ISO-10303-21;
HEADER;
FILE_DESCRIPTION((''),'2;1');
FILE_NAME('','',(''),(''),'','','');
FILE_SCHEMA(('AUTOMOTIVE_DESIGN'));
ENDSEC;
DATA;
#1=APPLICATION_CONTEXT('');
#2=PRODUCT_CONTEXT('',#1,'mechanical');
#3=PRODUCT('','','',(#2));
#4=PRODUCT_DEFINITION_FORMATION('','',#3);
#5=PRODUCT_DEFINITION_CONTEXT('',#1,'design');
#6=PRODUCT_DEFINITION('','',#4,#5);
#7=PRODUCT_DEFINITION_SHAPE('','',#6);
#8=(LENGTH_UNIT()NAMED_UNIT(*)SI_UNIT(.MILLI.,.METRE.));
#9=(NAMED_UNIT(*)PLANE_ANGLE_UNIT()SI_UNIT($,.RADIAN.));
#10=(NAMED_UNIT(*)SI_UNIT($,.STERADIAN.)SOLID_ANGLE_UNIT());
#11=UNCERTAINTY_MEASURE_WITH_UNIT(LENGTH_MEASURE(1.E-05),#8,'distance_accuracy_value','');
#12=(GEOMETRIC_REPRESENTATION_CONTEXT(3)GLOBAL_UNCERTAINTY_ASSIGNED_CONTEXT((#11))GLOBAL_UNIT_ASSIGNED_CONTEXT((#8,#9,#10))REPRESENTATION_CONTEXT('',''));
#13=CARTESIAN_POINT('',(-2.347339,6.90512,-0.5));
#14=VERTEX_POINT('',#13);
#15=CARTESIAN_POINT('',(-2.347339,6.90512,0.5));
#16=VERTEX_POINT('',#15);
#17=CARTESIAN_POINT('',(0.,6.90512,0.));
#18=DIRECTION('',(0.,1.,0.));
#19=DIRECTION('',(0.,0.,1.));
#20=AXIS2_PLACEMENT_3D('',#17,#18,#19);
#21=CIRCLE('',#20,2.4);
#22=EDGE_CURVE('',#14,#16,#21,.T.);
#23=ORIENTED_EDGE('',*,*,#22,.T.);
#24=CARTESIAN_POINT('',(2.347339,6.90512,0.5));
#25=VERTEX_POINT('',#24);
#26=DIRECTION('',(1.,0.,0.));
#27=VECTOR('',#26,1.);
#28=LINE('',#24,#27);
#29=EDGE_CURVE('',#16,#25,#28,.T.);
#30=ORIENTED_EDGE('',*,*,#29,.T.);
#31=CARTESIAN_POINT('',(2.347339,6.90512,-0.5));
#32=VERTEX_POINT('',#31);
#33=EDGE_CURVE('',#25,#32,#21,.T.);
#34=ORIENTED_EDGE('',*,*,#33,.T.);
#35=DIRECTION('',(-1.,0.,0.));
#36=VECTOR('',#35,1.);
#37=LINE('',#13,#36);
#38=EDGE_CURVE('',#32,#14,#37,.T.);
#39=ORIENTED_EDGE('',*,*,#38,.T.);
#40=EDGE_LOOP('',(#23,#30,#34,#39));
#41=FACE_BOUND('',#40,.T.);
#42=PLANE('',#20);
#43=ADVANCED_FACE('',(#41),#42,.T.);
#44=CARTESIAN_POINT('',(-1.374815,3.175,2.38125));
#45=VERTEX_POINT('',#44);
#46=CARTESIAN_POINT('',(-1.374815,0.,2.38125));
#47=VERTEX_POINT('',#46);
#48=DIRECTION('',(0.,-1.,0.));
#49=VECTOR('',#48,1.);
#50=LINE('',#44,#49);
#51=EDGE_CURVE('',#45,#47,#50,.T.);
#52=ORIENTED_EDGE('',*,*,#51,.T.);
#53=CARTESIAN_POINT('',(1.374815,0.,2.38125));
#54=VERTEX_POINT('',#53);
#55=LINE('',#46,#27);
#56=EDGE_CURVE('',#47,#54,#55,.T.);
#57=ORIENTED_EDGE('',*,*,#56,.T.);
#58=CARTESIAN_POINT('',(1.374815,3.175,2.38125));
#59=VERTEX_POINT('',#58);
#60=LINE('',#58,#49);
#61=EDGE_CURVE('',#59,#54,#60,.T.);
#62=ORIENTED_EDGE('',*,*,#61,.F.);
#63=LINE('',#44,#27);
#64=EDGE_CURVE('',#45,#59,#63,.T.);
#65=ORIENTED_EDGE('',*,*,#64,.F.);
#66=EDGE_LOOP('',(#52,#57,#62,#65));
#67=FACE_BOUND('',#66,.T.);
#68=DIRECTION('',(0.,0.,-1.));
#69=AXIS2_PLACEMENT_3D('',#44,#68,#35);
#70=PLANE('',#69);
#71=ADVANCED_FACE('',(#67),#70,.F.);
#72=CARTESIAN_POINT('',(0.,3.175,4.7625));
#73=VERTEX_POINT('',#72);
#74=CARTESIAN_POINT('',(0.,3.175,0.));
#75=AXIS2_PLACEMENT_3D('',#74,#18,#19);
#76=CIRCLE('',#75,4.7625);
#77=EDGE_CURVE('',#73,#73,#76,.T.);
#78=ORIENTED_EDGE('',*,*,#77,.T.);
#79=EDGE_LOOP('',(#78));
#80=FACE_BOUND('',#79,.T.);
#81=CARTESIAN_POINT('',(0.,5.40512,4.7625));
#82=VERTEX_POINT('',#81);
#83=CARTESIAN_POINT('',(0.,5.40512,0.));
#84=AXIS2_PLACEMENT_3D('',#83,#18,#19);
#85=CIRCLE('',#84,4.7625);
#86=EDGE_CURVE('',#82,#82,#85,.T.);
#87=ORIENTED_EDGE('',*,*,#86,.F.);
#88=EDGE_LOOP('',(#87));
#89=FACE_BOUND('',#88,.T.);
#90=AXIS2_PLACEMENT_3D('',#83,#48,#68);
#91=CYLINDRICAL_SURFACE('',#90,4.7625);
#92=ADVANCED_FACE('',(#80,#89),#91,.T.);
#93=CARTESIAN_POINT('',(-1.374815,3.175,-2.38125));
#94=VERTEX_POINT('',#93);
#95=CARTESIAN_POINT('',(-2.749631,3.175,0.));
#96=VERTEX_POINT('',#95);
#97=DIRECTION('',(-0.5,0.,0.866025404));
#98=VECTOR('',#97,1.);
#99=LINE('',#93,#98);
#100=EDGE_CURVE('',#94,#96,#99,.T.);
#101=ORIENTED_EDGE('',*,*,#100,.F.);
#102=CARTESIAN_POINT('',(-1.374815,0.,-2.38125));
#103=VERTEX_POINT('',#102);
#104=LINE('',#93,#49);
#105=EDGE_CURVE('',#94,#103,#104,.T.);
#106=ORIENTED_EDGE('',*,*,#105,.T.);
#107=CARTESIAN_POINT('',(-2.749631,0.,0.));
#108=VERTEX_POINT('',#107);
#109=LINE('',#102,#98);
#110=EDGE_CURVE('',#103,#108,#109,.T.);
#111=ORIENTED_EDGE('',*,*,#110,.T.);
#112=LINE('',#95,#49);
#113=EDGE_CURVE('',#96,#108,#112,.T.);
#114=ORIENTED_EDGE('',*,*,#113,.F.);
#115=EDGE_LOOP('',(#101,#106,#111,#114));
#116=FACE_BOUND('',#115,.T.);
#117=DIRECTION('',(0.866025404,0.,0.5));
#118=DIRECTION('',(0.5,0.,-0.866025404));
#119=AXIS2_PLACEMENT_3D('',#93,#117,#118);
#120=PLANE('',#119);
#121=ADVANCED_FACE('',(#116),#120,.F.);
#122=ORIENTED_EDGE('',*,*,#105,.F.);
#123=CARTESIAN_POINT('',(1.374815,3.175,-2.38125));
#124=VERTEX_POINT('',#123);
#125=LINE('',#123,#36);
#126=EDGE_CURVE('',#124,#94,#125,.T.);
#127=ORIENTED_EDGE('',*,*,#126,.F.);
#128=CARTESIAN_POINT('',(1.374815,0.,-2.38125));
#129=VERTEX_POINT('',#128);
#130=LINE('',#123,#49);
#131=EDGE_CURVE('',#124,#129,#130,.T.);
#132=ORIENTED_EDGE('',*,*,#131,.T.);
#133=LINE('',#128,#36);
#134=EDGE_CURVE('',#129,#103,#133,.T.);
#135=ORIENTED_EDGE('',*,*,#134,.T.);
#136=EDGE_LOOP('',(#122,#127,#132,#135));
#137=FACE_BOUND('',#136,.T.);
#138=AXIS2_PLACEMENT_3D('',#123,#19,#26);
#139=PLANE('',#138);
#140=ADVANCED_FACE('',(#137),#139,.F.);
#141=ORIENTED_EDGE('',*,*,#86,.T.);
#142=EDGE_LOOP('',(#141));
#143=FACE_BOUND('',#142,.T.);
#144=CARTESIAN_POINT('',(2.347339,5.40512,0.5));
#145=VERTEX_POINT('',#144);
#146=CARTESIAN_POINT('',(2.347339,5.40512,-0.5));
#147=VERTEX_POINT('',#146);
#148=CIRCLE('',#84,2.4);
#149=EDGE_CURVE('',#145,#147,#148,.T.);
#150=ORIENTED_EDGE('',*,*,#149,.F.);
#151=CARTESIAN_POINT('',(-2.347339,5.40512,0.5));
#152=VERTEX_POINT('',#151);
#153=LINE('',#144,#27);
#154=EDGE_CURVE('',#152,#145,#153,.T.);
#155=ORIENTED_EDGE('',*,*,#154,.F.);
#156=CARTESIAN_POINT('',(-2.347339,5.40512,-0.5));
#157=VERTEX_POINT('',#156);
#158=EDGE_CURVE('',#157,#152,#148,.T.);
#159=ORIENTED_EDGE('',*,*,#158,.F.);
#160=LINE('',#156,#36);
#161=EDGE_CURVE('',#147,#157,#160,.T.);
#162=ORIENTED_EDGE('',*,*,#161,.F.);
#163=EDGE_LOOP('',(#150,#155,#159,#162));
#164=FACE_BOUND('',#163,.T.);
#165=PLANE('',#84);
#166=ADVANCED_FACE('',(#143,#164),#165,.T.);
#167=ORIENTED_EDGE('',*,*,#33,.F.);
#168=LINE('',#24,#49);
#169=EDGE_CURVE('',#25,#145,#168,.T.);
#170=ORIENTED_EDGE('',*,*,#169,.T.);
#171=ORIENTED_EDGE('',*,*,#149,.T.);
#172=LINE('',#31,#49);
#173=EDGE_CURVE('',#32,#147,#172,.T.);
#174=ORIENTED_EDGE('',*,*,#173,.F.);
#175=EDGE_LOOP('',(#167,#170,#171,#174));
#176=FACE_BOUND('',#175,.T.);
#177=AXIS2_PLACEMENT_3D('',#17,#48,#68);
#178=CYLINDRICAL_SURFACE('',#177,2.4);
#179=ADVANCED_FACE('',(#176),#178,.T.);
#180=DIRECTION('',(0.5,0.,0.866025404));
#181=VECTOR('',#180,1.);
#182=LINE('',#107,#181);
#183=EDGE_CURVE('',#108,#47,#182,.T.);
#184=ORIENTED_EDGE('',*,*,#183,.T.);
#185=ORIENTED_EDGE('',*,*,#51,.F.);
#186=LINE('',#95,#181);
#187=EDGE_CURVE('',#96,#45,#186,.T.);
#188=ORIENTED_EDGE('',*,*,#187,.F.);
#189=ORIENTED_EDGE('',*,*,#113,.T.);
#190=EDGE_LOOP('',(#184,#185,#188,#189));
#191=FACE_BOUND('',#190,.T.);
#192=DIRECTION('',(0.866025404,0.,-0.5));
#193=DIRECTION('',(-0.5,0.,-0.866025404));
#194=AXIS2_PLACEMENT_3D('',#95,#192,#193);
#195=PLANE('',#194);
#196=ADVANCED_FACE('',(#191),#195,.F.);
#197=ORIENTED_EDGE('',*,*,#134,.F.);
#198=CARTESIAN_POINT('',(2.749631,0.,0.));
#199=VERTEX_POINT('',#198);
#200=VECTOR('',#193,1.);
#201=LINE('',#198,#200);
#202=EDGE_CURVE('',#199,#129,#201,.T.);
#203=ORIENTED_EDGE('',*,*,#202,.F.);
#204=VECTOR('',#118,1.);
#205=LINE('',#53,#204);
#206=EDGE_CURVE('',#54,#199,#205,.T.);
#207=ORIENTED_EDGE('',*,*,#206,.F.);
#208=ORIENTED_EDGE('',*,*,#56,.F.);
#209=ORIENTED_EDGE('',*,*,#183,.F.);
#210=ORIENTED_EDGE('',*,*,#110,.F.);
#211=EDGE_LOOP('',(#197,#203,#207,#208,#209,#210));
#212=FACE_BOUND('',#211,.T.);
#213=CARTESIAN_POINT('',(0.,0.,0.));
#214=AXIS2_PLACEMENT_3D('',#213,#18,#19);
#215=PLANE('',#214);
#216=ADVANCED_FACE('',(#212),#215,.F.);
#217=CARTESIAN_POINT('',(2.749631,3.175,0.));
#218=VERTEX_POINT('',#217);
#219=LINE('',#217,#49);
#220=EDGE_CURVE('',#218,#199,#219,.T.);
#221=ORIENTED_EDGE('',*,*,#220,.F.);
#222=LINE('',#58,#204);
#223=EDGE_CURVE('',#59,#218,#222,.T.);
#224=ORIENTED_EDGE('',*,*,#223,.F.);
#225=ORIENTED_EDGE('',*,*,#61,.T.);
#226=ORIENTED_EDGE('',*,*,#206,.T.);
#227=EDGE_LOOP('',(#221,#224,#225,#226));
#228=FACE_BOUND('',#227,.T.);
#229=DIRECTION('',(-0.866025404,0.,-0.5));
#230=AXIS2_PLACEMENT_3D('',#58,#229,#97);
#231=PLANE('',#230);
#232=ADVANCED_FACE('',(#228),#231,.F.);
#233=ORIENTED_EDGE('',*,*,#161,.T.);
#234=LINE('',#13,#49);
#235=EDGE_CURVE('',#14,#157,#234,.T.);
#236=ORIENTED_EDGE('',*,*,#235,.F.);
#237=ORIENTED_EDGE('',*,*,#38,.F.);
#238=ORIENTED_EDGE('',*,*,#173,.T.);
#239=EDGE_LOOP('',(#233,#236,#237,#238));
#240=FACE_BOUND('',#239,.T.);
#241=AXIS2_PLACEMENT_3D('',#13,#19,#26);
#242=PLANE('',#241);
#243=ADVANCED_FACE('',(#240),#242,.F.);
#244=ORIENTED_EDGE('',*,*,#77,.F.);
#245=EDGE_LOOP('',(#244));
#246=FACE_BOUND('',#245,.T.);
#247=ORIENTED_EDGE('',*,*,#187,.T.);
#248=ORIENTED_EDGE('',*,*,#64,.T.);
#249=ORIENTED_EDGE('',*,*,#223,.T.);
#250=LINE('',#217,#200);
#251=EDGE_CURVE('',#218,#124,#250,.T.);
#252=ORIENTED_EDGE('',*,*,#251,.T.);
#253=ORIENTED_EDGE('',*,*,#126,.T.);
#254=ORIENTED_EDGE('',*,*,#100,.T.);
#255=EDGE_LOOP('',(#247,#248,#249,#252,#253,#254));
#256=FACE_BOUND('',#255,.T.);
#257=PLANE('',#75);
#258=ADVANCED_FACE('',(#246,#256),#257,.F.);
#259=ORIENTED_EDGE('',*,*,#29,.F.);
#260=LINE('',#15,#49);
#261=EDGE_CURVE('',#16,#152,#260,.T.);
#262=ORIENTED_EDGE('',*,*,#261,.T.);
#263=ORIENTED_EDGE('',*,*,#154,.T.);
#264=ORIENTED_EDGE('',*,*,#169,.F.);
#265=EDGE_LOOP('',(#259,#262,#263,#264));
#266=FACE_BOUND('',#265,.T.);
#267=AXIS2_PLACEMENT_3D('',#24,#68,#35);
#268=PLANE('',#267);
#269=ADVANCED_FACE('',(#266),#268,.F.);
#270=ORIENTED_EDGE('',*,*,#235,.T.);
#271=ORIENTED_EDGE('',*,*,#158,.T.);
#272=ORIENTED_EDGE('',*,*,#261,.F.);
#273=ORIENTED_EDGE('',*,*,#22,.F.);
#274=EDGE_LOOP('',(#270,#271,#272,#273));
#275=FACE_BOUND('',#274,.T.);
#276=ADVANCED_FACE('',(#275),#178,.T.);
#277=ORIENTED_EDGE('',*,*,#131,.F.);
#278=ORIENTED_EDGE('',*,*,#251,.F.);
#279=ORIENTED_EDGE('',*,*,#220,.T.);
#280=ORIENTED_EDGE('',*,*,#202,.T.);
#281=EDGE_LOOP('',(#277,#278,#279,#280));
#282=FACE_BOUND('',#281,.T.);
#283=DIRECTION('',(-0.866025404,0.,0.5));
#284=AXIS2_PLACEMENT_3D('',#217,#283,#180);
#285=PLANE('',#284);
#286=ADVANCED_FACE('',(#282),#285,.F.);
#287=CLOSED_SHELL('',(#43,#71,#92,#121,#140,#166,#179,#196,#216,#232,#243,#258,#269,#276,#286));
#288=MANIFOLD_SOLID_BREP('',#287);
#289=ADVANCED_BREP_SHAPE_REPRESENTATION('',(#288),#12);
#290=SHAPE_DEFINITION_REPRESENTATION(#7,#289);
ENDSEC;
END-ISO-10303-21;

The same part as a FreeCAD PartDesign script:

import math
import FreeCAD as App
import Part
import Sketcher

V = App.Vector
Q = App.Units.Quantity

doc = App.newDocument("Part")
body = doc.addObject("PartDesign::Body", "Body")

sketch1 = doc.addObject("Sketcher::SketchObject", "Sketch")
body.addObject(sketch1)
sketch1.AttachmentSupport = (doc.XZ_Plane, [""])
sketch1.MapMode = "FlatFace"
sketch1.addGeometry([
    Part.LineSegment(V(1.4, -2.4, 0), V(-1.4, -2.4, 0)),
    Part.LineSegment(V(-1.4, -2.4, 0), V(-2.7, 0, 0)),
    Part.LineSegment(V(-2.7, 0, 0), V(-1.4, 2.4, 0)),
    Part.LineSegment(V(-1.4, 2.4, 0), V(1.4, 2.4, 0)),
    Part.LineSegment(V(1.4, 2.4, 0), V(2.7, 0, 0)),
    Part.LineSegment(V(2.7, 0, 0), V(1.4, -2.4, 0)),
], False)
sketch1.addConstraint([
    Sketcher.Constraint("Coincident", 0, 2, 1, 1),
    Sketcher.Constraint("Coincident", 1, 2, 2, 1),
    Sketcher.Constraint("Coincident", 2, 2, 3, 1),
    Sketcher.Constraint("Coincident", 3, 2, 4, 1),
    Sketcher.Constraint("Coincident", 4, 2, 5, 1),
    Sketcher.Constraint("Coincident", 5, 2, 0, 1),
    Sketcher.Constraint("Horizontal", 0),
    Sketcher.Constraint("Horizontal", 3),
    Sketcher.Constraint("Symmetric", 0, 2, 3, 2, -1, 1),
    Sketcher.Constraint("Symmetric", 1, 2, 4, 2, -1, 1),
    Sketcher.Constraint("PointOnObject", 1, 2, -1),
    Sketcher.Constraint("Parallel", 2, 5),
    Sketcher.Constraint("Vertical", 0, 2, 2, 2),
    Sketcher.Constraint("Angle", 1, Q("120 deg")),
    Sketcher.Constraint("DistanceX", 0, 2, 0, 1, Q("2.749631 mm")),
    Sketcher.Constraint("DistanceY", 0, 2, 2, 2, Q("4.7625 mm")),
])
pad1 = doc.addObject("PartDesign::Pad", "Pad")
body.addObject(pad1)
pad1.Profile = sketch1
pad1.Length = 3.175
pad1.Reversed = True

sketch2 = doc.addObject("Sketcher::SketchObject", "Sketch001")
body.addObject(sketch2)
sketch2.AttachmentSupport = (doc.XZ_Plane, [""])
sketch2.MapMode = "FlatFace"
sketch2.AttachmentOffset = App.Placement(V(0, 0, -3.175), App.Rotation())
sketch2.addGeometry(Part.Circle(V(0, 0, 0), V(0, 0, 1), 4.8), False)
sketch2.addConstraint([
    Sketcher.Constraint("Coincident", 0, 3, -1, 1),
    Sketcher.Constraint("Diameter", 0, Q("9.525 mm")),
])
pad2 = doc.addObject("PartDesign::Pad", "Pad001")
body.addObject(pad2)
pad2.Profile = sketch2
pad2.Length = 2.23012
pad2.Reversed = True

sketch3 = doc.addObject("Sketcher::SketchObject", "Sketch002")
body.addObject(sketch3)
sketch3.AttachmentSupport = (doc.XZ_Plane, [""])
sketch3.MapMode = "FlatFace"
sketch3.AttachmentOffset = App.Placement(V(0, 0, -5.40512), App.Rotation())
sketch3.addGeometry([
    Part.LineSegment(V(2.3, -0.5, 0), V(-2.3, -0.5, 0)),
    Part.ArcOfCircle(Part.Circle(V(0, 0, 0), V(0, 0, 1), 2.4), math.radians(168), math.radians(192)),
    Part.LineSegment(V(-2.3, 0.5, 0), V(2.3, 0.5, 0)),
    Part.ArcOfCircle(Part.Circle(V(0, 0, 0), V(0, 0, 1), 2.4), math.radians(-12), math.radians(12)),
], False)
sketch3.addConstraint([
    Sketcher.Constraint("Coincident", 0, 2, 1, 2),
    Sketcher.Constraint("Coincident", 1, 1, 2, 1),
    Sketcher.Constraint("Coincident", 2, 2, 3, 2),
    Sketcher.Constraint("Coincident", 3, 1, 0, 1),
    Sketcher.Constraint("Horizontal", 0),
    Sketcher.Constraint("Horizontal", 2),
    Sketcher.Constraint("Coincident", 1, 3, -1, 1),
    Sketcher.Constraint("Coincident", 3, 3, -1, 1),
    Sketcher.Constraint("Equal", 1, 3),
    Sketcher.Constraint("Vertical", 0, 2, 1, 1),
    Sketcher.Constraint("Radius", 1, Q("2.4 mm")),
    Sketcher.Constraint("DistanceY", 0, 2, 1, 1, Q("1 mm")),
])
pad3 = doc.addObject("PartDesign::Pad", "Pad002")
body.addObject(pad3)
pad3.Profile = sketch3
pad3.Length = 1.5
pad3.Reversed = True

doc.recompute()
